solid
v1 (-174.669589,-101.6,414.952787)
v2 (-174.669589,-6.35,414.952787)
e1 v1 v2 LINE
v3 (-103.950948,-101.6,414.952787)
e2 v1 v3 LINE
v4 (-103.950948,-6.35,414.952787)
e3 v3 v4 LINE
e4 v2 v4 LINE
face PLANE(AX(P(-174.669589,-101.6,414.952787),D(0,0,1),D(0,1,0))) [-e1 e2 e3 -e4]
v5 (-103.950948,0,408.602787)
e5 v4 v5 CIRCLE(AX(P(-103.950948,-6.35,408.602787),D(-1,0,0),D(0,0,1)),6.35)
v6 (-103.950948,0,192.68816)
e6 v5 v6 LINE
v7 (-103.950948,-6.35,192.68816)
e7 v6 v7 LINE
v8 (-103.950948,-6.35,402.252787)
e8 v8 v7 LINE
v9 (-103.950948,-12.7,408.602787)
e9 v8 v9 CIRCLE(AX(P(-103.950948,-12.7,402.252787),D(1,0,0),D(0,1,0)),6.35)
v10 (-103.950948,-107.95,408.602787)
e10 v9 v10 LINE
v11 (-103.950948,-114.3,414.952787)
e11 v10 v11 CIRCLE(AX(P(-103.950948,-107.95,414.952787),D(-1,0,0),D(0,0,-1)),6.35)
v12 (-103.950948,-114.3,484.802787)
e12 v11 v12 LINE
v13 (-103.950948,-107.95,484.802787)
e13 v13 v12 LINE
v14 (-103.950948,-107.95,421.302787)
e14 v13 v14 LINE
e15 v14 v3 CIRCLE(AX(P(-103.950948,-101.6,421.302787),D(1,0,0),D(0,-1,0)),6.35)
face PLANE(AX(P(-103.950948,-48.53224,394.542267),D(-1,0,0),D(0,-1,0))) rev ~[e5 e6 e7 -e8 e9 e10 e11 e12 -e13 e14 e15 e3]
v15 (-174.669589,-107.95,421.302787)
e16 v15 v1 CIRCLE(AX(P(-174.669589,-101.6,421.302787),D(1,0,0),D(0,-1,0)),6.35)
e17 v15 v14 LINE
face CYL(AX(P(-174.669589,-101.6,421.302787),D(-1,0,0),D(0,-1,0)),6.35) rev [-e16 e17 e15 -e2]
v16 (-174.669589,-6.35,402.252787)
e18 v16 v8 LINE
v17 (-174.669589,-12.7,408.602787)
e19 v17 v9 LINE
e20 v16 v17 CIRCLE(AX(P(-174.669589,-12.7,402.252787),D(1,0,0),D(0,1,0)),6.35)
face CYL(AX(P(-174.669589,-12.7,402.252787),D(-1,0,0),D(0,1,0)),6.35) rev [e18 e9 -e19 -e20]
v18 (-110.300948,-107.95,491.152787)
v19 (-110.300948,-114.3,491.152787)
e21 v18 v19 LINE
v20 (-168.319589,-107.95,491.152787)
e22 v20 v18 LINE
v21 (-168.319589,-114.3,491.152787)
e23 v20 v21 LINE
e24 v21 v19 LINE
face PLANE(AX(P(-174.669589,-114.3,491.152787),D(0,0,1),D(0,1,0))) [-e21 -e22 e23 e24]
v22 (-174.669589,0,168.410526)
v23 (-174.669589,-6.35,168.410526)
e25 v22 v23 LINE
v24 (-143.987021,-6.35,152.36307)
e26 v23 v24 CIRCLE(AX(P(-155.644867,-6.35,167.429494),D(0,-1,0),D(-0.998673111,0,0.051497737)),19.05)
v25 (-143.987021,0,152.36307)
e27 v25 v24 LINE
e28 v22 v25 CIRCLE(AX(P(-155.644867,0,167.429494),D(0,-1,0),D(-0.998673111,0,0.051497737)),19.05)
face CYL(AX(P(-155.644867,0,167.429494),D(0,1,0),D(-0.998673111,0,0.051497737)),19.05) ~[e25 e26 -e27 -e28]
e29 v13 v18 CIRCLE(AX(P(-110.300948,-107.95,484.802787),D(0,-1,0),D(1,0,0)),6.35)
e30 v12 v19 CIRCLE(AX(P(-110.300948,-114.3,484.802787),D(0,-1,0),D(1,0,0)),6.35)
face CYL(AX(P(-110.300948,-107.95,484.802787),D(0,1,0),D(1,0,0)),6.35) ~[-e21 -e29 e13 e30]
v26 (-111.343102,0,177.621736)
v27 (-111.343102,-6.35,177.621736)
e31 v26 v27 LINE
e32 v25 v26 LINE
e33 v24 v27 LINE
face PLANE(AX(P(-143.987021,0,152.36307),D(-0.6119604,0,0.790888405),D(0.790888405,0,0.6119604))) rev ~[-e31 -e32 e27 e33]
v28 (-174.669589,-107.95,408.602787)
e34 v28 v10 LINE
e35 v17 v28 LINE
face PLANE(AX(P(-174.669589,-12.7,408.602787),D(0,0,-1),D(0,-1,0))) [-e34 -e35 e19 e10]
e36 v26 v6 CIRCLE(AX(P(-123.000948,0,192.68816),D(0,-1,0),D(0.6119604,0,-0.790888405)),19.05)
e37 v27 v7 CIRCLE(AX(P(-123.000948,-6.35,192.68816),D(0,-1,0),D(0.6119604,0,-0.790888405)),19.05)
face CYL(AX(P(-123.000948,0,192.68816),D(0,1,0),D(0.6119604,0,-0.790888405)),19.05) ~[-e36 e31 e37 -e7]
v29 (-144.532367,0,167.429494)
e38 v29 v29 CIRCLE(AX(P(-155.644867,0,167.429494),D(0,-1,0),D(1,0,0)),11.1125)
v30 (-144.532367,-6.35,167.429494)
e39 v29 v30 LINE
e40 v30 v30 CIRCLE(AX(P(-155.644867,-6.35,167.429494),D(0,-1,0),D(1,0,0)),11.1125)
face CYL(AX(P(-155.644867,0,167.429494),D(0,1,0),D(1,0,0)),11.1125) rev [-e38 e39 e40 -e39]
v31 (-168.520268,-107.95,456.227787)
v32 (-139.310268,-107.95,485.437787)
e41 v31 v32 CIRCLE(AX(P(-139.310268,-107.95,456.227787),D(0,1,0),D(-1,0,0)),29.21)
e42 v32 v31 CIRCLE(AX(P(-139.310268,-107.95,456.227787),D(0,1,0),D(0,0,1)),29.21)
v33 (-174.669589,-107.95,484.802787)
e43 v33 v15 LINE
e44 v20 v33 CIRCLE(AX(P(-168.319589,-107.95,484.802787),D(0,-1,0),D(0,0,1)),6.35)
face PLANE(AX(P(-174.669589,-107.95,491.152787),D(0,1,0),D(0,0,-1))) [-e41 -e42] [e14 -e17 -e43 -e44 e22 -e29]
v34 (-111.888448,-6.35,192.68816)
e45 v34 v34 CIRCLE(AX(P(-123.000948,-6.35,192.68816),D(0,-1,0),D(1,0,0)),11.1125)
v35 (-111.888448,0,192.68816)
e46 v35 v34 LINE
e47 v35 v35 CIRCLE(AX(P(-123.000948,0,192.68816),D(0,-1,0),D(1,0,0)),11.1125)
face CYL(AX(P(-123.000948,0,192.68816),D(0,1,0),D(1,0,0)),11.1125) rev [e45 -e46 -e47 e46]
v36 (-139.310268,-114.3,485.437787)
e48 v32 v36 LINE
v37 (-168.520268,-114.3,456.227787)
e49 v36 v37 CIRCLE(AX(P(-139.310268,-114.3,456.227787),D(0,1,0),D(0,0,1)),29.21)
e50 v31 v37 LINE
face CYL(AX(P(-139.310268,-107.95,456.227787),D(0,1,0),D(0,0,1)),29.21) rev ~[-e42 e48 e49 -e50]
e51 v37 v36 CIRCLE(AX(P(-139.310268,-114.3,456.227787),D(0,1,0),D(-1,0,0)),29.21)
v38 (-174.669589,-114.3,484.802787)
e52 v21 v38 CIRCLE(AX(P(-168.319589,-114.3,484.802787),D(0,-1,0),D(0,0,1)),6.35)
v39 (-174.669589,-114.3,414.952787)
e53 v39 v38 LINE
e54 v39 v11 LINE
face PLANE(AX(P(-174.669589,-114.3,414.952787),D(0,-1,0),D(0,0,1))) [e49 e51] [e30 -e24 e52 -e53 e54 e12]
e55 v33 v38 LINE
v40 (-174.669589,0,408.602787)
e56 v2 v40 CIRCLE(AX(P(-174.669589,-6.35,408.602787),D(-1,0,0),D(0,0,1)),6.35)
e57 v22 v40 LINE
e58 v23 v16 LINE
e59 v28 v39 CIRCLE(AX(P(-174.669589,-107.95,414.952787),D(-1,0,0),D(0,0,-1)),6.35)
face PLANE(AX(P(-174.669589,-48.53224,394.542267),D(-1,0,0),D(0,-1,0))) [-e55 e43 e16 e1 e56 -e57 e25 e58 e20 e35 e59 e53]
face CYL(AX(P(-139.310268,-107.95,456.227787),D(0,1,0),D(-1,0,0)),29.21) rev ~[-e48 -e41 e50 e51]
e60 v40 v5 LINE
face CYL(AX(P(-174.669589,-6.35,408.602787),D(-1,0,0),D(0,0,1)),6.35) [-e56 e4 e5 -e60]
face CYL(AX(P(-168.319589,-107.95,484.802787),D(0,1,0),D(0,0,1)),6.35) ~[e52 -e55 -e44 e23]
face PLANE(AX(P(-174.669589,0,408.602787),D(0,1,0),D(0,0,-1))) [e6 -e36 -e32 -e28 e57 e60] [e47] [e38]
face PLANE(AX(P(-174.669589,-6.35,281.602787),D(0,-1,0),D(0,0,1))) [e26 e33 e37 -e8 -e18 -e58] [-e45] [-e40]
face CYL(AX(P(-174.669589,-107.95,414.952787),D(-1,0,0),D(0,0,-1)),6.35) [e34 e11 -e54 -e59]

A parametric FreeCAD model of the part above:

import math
import FreeCAD as App
import Part
import Sketcher

V = App.Vector
Q = App.Units.Quantity

doc = App.newDocument("Part")
body = doc.addObject("PartDesign::Body", "Body")

# Sketch on XZ plane
sketch1 = body.newObject("Sketcher::SketchObject", "Sketch")
sketch1.AttachmentSupport = (doc.getObject("XZ_Plane"), [""])
sketch1.MapMode = "FlatFace"
sketch1.addGeometry(Part.LineSegment(V(-175, 282, 0), V(-175, 168, 0)), False)
sketch1.addGeometry(Part.ArcOfCircle(Part.Circle(V(-156, 167, 0), V(0, 0, 1), 19), math.radians(177), math.radians(308)), False)
sketch1.addGeometry(Part.LineSegment(V(-144, 152, 0), V(-111, 178, 0)), False)
sketch1.addGeometry(Part.ArcOfCircle(Part.Circle(V(-123, 193, 0), V(0, 0, 1), 19), math.radians(-52), math.radians(0)), False)
sketch1.addGeometry(Part.LineSegment(V(-104, 193, 0), V(-104, 282, 0)), False)
sketch1.addGeometry(Part.LineSegment(V(-104, 282, 0), V(-175, 282, 0)), False)
sketch1.addGeometry(Part.Circle(V(-156, 167, 0), V(0, 0, 1), 11), False)
sketch1.addGeometry(Part.Circle(V(-123, 193, 0), V(0, 0, 1), 11), False)
sketch1.addConstraint(Sketcher.Constraint("Coincident", 0, 2, 1, 1))
sketch1.addConstraint(Sketcher.Constraint("Tangent", 1, 2, 2, 1))
sketch1.addConstraint(Sketcher.Constraint("Tangent", 2, 2, 3, 1))
sketch1.addConstraint(Sketcher.Constraint("Tangent", 3, 2, 4, 1))
sketch1.addConstraint(Sketcher.Constraint("Coincident", 4, 2, 5, 1))
sketch1.addConstraint(Sketcher.Constraint("Coincident", 5, 2, 0, 1))
sketch1.addConstraint(Sketcher.Constraint("Vertical", 0))
sketch1.addConstraint(Sketcher.Constraint("Vertical", 4))
sketch1.addConstraint(Sketcher.Constraint("Horizontal", 5))
sketch1.addConstraint(Sketcher.Constraint("Coincident", 6, 3, 1, 3))
sketch1.addConstraint(Sketcher.Constraint("Coincident", 7, 3, 3, 3))
sketch1.addConstraint(Sketcher.Constraint("Equal", 1, 3))
sketch1.addConstraint(Sketcher.Constraint("Equal", 6, 7))
sketch1.addConstraint(Sketcher.Constraint("Radius", 1, Q("0.75 in")))
sketch1.addConstraint(Sketcher.Constraint("Diameter", 6, Q("0.875 in")))
sketch1.addConstraint(Sketcher.Constraint("Distance", 2, Q("1.625 in")))
sketch1.addConstraint(Sketcher.Constraint("DistanceX", 5, 2, 5, 1, Q("70.718642 mm")))
sketch1.addConstraint(Sketcher.Constraint("DistanceY", 0, 2, 0, 1, Q("113.192261 mm")))
sketch1.addConstraint(Sketcher.Constraint("DistanceY", 4, 1, 4, 2, Q("88.914627 mm")))
sketch1.addConstraint(Sketcher.Constraint("DistanceY", -1, 1, 3, 3, Q("192.68816 mm")))
sketch1.addConstraint(Sketcher.Constraint("DistanceX", 0, 2, -1, 1, Q("174.669589 mm")))
pad1 = body.newObject("PartDesign::Pad", "Pad")
pad1.Profile = sketch1
pad1.Length = Q("0.25 in")

# Sketch on YZ plane
sketch2 = body.newObject("Sketcher::SketchObject", "Sketch001")
sketch2.AttachmentSupport = (doc.getObject("YZ_Plane"), [""])
sketch2.MapMode = "FlatFace"
sketch2.AttachmentOffset = App.Placement(V(0, 0, -174.669589), App.Rotation())
sketch2.addGeometry(Part.LineSegment(V(0, 409, 0), V(0, 282, 0)), False)
sketch2.addGeometry(Part.LineSegment(V(0, 282, 0), V(-6, 282, 0)), False)
sketch2.addGeometry(Part.LineSegment(V(-6, 282, 0), V(-6, 402, 0)), False)
sketch2.addGeometry(Part.ArcOfCircle(Part.Circle(V(-13, 402, 0), V(0, 0, 1), 6), math.radians(0), math.radians(90)), False)
sketch2.addGeometry(Part.LineSegment(V(-13, 409, 0), V(-108, 409, 0)), False)
sketch2.addGeometry(Part.ArcOfCircle(Part.Circle(V(-108, 415, 0), V(0, 0, 1), 6), math.radians(180), math.radians(270)), False)
sketch2.addGeometry(Part.LineSegment(V(-114, 415, 0), V(-114, 491, 0)), False)
sketch2.addGeometry(Part.LineSegment(V(-114, 491, 0), V(-108, 491, 0)), False)
sketch2.addGeometry(Part.LineSegment(V(-108, 491, 0), V(-108, 421, 0)), False)
sketch2.addGeometry(Part.ArcOfCircle(Part.Circle(V(-102, 421, 0), V(0, 0, 1), 6), math.radians(180), math.radians(270)), False)
sketch2.addGeometry(Part.LineSegment(V(-102, 415, 0), V(-6, 415, 0)), False)
sketch2.addGeometry(Part.ArcOfCircle(Part.Circle(V(-6, 409, 0), V(0, 0, 1), 6), math.radians(0), math.radians(90)), False)
sketch2.addConstraint(Sketcher.Constraint("Coincident", 0, 2, 1, 1))
sketch2.addConstraint(Sketcher.Constraint("Coincident", 1, 2, 2, 1))
sketch2.addConstraint(Sketcher.Constraint("Tangent", 2, 2, 3, 1))
sketch2.addConstraint(Sketcher.Constraint("Tangent", 3, 2, 4, 1))
sketch2.addConstraint(Sketcher.Constraint("Tangent", 4, 2, 5, 2))
sketch2.addConstraint(Sketcher.Constraint("Tangent", 5, 1, 6, 1))
sketch2.addConstraint(Sketcher.Constraint("Coincident", 6, 2, 7, 1))
sketch2.addConstraint(Sketcher.Constraint("Coincident", 7, 2, 8, 1))
sketch2.addConstraint(Sketcher.Constraint("Tangent", 8, 2, 9, 1))
sketch2.addConstraint(Sketcher.Constraint("Tangent", 9, 2, 10, 1))
sketch2.addConstraint(Sketcher.Constraint("Tangent", 10, 2, 11, 2))
sketch2.addConstraint(Sketcher.Constraint("Tangent", 11, 1, 0, 1))
sketch2.addConstraint(Sketcher.Constraint("Vertical", 0))
sketch2.addConstraint(Sketcher.Constraint("Horizontal", 1))
sketch2.addConstraint(Sketcher.Constraint("Vertical", 2))
sketch2.addConstraint(Sketcher.Constraint("Horizontal", 4))
sketch2.addConstraint(Sketcher.Constraint("Vertical", 6))
sketch2.addConstraint(Sketcher.Constraint("Horizontal", 7))
sketch2.addConstraint(Sketcher.Constraint("Vertical", 8))
sketch2.addConstraint(Sketcher.Constraint("Horizontal", 10))
sketch2.addConstraint(Sketcher.Constraint("Equal", 3, 5))
sketch2.addConstraint(Sketcher.Constraint("Equal", 5, 9))
sketch2.addConstraint(Sketcher.Constraint("Equal", 9, 11))
sketch2.addConstraint(Sketcher.Constraint("PointOnObject", 0, 2, -2))
sketch2.addConstraint(Sketcher.Constraint("Horizontal", 11, 3, 3, 2))
sketch2.addConstraint(Sketcher.Constraint("Vertical", 11, 3, 1, 2))
sketch2.addConstraint(Sketcher.Constraint("Vertical", 4, 2, 7, 2))
sketch2.addConstraint(Sketcher.Constraint("DistanceY", 0, 2, 0, 1, Q("5 in")))
sketch2.addConstraint(Sketcher.Constraint("DistanceY", 6, 1, 6, 2, Q("3 in")))
sketch2.addConstraint(Sketcher.Constraint("Radius", 3, Q("0.25 in")))
sketch2.addConstraint(Sketcher.Constraint("DistanceX", 9, 3, -1, 1, Q("4 in")))
sketch2.addConstraint(Sketcher.Constraint("DistanceY", -1, 1, 3, 3, Q("402.252787 mm")))
pad2 = body.newObject("PartDesign::Pad", "Pad001")
pad2.Profile = sketch2
pad2.Length = 70.718642

# Sketch on XZ plane
sketch3 = body.newObject("Sketcher::SketchObject", "Sketch002")
sketch3.AttachmentSupport = (doc.getObject("XZ_Plane"), [""])
sketch3.MapMode = "FlatFace"
sketch3.AttachmentOffset = App.Placement(V(0, 0, 4.25 * 25.4), App.Rotation())
sketch3.addGeometry(Part.ArcOfCircle(Part.Circle(V(-139, 456, 0), V(0, 0, 1), 29), math.radians(180), math.radians(450)), False)
sketch3.addGeometry(Part.ArcOfCircle(Part.Circle(V(-139, 456, 0), V(0, 0, 1), 29), math.radians(90), math.radians(180)), False)
sketch3.addConstraint(Sketcher.Constraint("Tangent", 0, 1, 1, 2))
sketch3.addConstraint(Sketcher.Constraint("Coincident", 1, 1, 0, 2))
sketch3.addConstraint(Sketcher.Constraint("Horizontal", 1, 3, 0, 1))
sketch3.addConstraint(Sketcher.Constraint("Vertical", 0, 3, 1, 1))
sketch3.addConstraint(Sketcher.Constraint("Radius", 0, Q("1.15 in")))
sketch3.addConstraint(Sketcher.Constraint("DistanceX", 0, 3, -1, 1, Q("139.310268 mm")))
sketch3.addConstraint(Sketcher.Constraint("DistanceY", -1, 1, 0, 3, Q("456.227787 mm")))
pocket1 = body.newObject("PartDesign::Pocket", "Pocket")
pocket1.Profile = sketch3
pocket1.Type = "ThroughAll"
pocket1.Reversed = True

# Sketch on XZ plane
sketch4 = body.newObject("Sketcher::SketchObject", "Sketch003")
sketch4.AttachmentSupport = (doc.getObject("XZ_Plane"), [""])
sketch4.MapMode = "FlatFace"
sketch4.AttachmentOffset = App.Placement(V(0, 0, 4.25 * 25.4), App.Rotation())
sketch4.addGeometry(Part.ArcOfCircle(Part.Circle(V(-110, 485, 0), V(0, 0, 1), 6), math.radians(0), math.radians(90)), False)
sketch4.addGeometry(Part.LineSegment(V(-110, 491, 0), V(-104, 491, 0)), False)
sketch4.addGeometry(Part.LineSegment(V(-104, 491, 0), V(-104, 485, 0)), False)
sketch4.addGeometry(Part.LineSegment(V(-175, 491, 0), V(-168, 491, 0)), False)
sketch4.addGeometry(Part.ArcOfCircle(Part.Circle(V(-168, 485, 0), V(0, 0, 1), 6), math.radians(90), math.radians(180)), False)
sketch4.addGeometry(Part.LineSegment(V(-175, 485, 0), V(-175, 491, 0)), False)
sketch4.addConstraint(Sketcher.Constraint("Tangent", 0, 2, 1, 1))
sketch4.addConstraint(Sketcher.Constraint("Coincident", 1, 2, 2, 1))
sketch4.addConstraint(Sketcher.Constraint("Tangent", 2, 2, 0, 1))
sketch4.addConstraint(Sketcher.Constraint("Tangent", 3, 2, 4, 1))
sketch4.addConstraint(Sketcher.Constraint("Tangent", 4, 2, 5, 1))
sketch4.addConstraint(Sketcher.Constraint("Coincident", 5, 2, 3, 1))
sketch4.addConstraint(Sketcher.Constraint("Horizontal", 1))
sketch4.addConstraint(Sketcher.Constraint("Vertical", 2))
sketch4.addConstraint(Sketcher.Constraint("Horizontal", 3))
sketch4.addConstraint(Sketcher.Constraint("Vertical", 5))
sketch4.addConstraint(Sketcher.Constraint("Equal", 0, 4))
sketch4.addConstraint(Sketcher.Constraint("Horizontal", 0, 3, 4, 3))
sketch4.addConstraint(Sketcher.Constraint("Radius", 0, Q("0.25 in")))
sketch4.addConstraint(Sketcher.Constraint("DistanceX", 4, 3, -1, 1, Q("168.319589 mm")))
sketch4.addConstraint(Sketcher.Constraint("DistanceX", 4, 3, 0, 3, Q("58.018642 mm")))
sketch4.addConstraint(Sketcher.Constraint("DistanceY", -1, 1, 0, 3, Q("484.802787 mm")))
pocket2 = body.newObject("PartDesign::Pocket", "Pocket001")
pocket2.Profile = sketch4
pocket2.Type = "ThroughAll"
pocket2.Reversed = True

doc.recompute()
